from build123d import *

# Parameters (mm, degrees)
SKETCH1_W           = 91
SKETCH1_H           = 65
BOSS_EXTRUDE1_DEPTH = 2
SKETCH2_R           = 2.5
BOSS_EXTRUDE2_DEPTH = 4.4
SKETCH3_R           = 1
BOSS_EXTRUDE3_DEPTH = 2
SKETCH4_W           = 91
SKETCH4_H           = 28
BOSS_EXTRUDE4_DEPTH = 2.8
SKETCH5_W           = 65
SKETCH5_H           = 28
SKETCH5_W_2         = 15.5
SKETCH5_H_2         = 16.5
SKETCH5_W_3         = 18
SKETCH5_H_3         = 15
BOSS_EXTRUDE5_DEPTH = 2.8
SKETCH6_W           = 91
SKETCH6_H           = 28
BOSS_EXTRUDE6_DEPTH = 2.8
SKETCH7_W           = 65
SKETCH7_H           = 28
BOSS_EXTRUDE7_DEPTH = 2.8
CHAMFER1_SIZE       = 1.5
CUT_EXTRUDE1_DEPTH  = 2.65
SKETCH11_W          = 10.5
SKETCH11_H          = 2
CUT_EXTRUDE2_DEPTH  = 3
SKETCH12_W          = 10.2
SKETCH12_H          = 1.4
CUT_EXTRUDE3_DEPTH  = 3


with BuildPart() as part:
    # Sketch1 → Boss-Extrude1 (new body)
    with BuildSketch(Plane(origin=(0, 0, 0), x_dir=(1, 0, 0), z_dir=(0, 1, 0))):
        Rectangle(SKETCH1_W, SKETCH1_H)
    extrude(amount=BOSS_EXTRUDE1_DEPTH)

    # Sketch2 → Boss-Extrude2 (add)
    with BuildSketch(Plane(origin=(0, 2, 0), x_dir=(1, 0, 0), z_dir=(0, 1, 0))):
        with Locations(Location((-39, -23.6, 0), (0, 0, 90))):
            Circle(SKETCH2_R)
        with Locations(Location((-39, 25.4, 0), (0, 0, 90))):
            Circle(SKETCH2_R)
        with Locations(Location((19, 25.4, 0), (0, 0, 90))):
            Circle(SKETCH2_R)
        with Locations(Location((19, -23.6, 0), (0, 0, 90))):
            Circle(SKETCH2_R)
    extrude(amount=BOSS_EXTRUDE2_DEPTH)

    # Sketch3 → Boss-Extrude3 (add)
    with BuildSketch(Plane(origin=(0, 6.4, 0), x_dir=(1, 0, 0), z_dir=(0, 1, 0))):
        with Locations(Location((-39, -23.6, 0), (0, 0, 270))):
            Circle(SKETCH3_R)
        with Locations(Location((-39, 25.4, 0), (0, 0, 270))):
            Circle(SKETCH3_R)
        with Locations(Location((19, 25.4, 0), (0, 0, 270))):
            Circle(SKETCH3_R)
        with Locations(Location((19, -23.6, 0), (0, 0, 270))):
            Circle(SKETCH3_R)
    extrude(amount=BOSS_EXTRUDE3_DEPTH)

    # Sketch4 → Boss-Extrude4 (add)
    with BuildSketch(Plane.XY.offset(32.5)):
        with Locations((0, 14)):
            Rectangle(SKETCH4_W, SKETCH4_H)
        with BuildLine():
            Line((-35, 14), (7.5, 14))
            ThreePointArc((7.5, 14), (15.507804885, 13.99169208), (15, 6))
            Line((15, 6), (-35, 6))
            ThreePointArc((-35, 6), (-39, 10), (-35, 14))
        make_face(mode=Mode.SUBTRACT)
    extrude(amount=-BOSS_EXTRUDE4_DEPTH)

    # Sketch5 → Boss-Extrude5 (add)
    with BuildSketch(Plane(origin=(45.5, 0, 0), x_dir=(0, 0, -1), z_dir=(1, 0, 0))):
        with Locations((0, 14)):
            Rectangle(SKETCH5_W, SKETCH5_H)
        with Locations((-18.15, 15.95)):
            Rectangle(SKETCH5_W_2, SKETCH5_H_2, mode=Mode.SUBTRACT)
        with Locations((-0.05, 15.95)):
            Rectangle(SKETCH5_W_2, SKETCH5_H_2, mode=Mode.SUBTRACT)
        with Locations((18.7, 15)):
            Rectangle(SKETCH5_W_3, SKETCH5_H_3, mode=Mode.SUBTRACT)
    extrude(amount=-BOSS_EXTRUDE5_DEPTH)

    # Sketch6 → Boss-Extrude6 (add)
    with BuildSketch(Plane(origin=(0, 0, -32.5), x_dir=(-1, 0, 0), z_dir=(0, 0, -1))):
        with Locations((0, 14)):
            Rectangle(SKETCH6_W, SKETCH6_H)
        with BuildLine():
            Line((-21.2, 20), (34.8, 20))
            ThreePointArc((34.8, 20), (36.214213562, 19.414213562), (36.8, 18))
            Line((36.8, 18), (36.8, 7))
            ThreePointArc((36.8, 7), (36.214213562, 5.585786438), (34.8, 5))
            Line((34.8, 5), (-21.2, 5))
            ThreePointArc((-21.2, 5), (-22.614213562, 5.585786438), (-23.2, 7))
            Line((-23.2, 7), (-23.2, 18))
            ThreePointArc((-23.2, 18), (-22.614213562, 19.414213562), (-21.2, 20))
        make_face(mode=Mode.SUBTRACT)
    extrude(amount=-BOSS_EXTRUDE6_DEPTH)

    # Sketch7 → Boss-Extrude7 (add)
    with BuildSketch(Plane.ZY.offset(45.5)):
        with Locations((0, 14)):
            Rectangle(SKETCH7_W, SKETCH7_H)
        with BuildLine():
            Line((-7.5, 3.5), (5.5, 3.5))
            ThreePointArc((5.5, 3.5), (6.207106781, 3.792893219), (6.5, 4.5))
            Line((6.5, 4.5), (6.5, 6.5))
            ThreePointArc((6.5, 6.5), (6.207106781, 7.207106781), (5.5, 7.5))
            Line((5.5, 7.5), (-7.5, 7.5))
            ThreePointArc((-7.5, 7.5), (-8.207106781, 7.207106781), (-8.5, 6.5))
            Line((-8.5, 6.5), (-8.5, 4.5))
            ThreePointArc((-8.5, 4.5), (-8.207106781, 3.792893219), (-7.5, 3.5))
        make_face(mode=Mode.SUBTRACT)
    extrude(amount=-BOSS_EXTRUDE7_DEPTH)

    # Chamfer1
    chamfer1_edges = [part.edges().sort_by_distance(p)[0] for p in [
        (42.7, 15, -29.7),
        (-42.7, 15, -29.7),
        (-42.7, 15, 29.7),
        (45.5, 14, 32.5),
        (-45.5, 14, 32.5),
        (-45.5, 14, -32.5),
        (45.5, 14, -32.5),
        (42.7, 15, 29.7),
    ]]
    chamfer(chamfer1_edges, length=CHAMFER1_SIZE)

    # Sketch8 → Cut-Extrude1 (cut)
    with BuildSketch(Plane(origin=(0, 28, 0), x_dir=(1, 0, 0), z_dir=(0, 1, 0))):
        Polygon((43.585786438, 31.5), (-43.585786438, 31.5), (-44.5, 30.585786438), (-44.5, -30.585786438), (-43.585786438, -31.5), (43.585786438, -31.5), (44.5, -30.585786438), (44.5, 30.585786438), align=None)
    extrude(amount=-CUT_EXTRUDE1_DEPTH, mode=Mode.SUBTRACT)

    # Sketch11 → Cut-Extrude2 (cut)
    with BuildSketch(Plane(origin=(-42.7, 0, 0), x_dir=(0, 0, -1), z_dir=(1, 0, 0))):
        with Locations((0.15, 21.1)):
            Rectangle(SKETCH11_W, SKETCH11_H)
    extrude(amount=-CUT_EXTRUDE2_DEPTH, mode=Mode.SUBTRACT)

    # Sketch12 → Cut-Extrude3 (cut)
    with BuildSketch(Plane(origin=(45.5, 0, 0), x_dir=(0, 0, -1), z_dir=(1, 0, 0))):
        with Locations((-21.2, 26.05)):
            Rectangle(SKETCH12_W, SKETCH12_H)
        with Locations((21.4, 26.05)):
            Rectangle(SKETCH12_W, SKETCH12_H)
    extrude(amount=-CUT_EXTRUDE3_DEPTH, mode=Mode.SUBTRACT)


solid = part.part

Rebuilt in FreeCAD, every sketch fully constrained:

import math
import FreeCAD as App
import Part
import Sketcher

V = App.Vector


def edges_at(feature, points):
    """Names of the edges that pass closest to the given points."""
    edges = feature.Shape.Edges
    near = lambda p: min(range(len(edges)), key=lambda i: edges[i].distToShape(Part.Vertex(*p))[0])
    return sorted({f"Edge{near(p) + 1}" for p in points})


def add_polygon(sketch, points):
    """Adds a closed chain of lines whose ends are joined by coincident constraints."""
    first, n = sketch.GeometryCount, len(points)
    for a, b in zip(points, points[1:] + points[:1]):
        sketch.addGeometry(Part.LineSegment(App.Vector(*a, 0), App.Vector(*b, 0)), False)
    for i in range(n):
        sketch.addConstraint(Sketcher.Constraint("Coincident", first + i, 2, first + (i + 1) % n, 1))

doc = App.newDocument("Part")
params = doc.addObject("Spreadsheet::Sheet", "Params")
for row, (alias, value) in enumerate([
    ("sketch1_width", "91 mm"),
    ("sketch1_height", "65 mm"),
    ("pad1_length", "2 mm"),
    ("sketch2_diameter", "5 mm"),
    ("pad2_length", "4.4 mm"),
    ("sketch3_diameter", "2 mm"),
    ("pad3_length", "2 mm"),
    ("sketch4_radius", "4 mm"),
    ("sketch4_width", "91 mm"),
    ("sketch4_width2", "50 mm"),
    ("sketch4_height", "28 mm"),
    ("sketch4_width3", "42.5 mm"),
    ("pad4_length", "2.8 mm"),
    ("sketch5_width", "28 mm"),
    ("sketch5_width2", "15 mm"),
    ("sketch5_height", "65 mm"),
    ("sketch5_height2", "18 mm"),
    ("sketch5_width3", "16.5 mm"),
    ("pad5_length", "2.8 mm"),
    ("sketch6_radius", "2 mm"),
    ("sketch6_width", "91 mm"),
    ("sketch6_width2", "56 mm"),
    ("sketch6_height", "28 mm"),
    ("sketch6_height2", "11 mm"),
    ("pad6_length", "2.8 mm"),
    ("sketch7_radius", "1 mm"),
    ("sketch7_width", "28 mm"),
    ("sketch7_width2", "2 mm"),
    ("sketch7_height", "65 mm"),
    ("sketch7_height2", "13 mm"),
    ("pad7_length", "2.8 mm"),
    ("chamfer_size", "1.5 mm"),
    ("pocket1_length", "2.65 mm"),
    ("sketch9_width", "2 mm"),
    ("sketch9_height", "10.5 mm"),
    ("pocket2_length", "3 mm"),
    ("sketch10_width", "1.4 mm"),
    ("sketch10_height", "10.2 mm"),
    ("pocket3_length", "3 mm"),
], start=1):
    params.set(f"A{row}", alias)
    params.set(f"B{row}", "=" + value)
    params.setAlias(f"B{row}", alias)

body = doc.addObject("PartDesign::Body", "Body")

sketch1 = body.newObject("Sketcher::SketchObject", "Sketch")
sketch1.AttachmentSupport = (doc.getObject("XZ_Plane"), [""])
sketch1.MapMode = "FlatFace"
add_polygon(sketch1, [(-46, -32), (-46, 32), (46, 32), (46, -32)])
sketch1.addConstraint([
    Sketcher.Constraint("Vertical", 0),
    Sketcher.Constraint("Horizontal", 1),
    Sketcher.Constraint("Vertical", 2),
    Sketcher.Constraint("Horizontal", 3),
    Sketcher.Constraint("Symmetric", 0, 2, 2, 2, -1, 1),
    Sketcher.Constraint("DistanceX", 1, 1, 1, 2, 91.0),
    Sketcher.Constraint("DistanceY", 0, 1, 0, 2, 65.0),
])
sketch1.setExpression("Constraints[9]", "Params.sketch1_width")
sketch1.setExpression("Constraints[10]", "Params.sketch1_height")
pad1 = body.newObject("PartDesign::Pad", "Pad")
pad1.Profile = sketch1
pad1.setExpression("Length", "Params.pad1_length")
pad1.Reversed = True

sketch2 = body.newObject("Sketcher::SketchObject", "Sketch001")
sketch2.AttachmentSupport = (doc.getObject("XZ_Plane"), [""])
sketch2.MapMode = "FlatFace"
sketch2.AttachmentOffset = App.Placement(V(0, 0, -2), App.Rotation())
sketch2.addGeometry([
    Part.Circle(V(-39, 23.6, 0), V(0, 0, 1), 2.5),
    Part.Circle(V(-39, -25.4, 0), V(0, 0, 1), 2.5),
    Part.Circle(V(19, -25.4, 0), V(0, 0, 1), 2.5),
    Part.Circle(V(19, 23.6, 0), V(0, 0, 1), 2.5),
], False)
sketch2.addConstraint([
    Sketcher.Constraint("Equal", 0, 1),
    Sketcher.Constraint("Equal", 1, 2),
    Sketcher.Constraint("Equal", 2, 3),
    Sketcher.Constraint("Horizontal", 1, 3, 2, 3),
    Sketcher.Constraint("Horizontal", 0, 3, 3, 3),
    Sketcher.Constraint("Vertical", 0, 3, 1, 3),
    Sketcher.Constraint("Vertical", 2, 3, 3, 3),
    Sketcher.Constraint("Diameter", 0, 5.0),
    Sketcher.Constraint("DistanceX", 0, 3, -1, 1, 39.0),
    Sketcher.Constraint("DistanceX", -1, 1, 2, 3, 19.0),
    Sketcher.Constraint("DistanceY", 1, 3, 0, 3, 49.0),
    Sketcher.Constraint("DistanceY", -1, 1, 0, 3, 23.6),
])
sketch2.setExpression("Constraints[7]", "Params.sketch2_diameter")
pad2 = body.newObject("PartDesign::Pad", "Pad001")
pad2.Profile = sketch2
pad2.setExpression("Length", "Params.pad2_length")
pad2.Reversed = True

sketch3 = body.newObject("Sketcher::SketchObject", "Sketch002")
sketch3.AttachmentSupport = (doc.getObject("XZ_Plane"), [""])
sketch3.MapMode = "FlatFace"
sketch3.AttachmentOffset = App.Placement(V(0, 0, -6.4), App.Rotation())
sketch3.addGeometry([
    Part.Circle(V(-39, 23.6, 0), V(0, 0, 1), 1),
    Part.Circle(V(-39, -25.4, 0), V(0, 0, 1), 1),
    Part.Circle(V(19, -25.4, 0), V(0, 0, 1), 1),
    Part.Circle(V(19, 23.6, 0), V(0, 0, 1), 1),
], False)
sketch3.addConstraint([
    Sketcher.Constraint("Equal", 0, 1),
    Sketcher.Constraint("Equal", 1, 2),
    Sketcher.Constraint("Equal", 2, 3),
    Sketcher.Constraint("Horizontal", 1, 3, 2, 3),
    Sketcher.Constraint("Horizontal", 0, 3, 3, 3),
    Sketcher.Constraint("Vertical", 0, 3, 1, 3),
    Sketcher.Constraint("Vertical", 2, 3, 3, 3),
    Sketcher.Constraint("Diameter", 0, 2.0),
    Sketcher.Constraint("DistanceX", 0, 3, -1, 1, 39.0),
    Sketcher.Constraint("DistanceX", -1, 1, 2, 3, 19.0),
    Sketcher.Constraint("DistanceY", 1, 3, 0, 3, 49.0),
    Sketcher.Constraint("DistanceY", -1, 1, 0, 3, 23.6),
])
sketch3.setExpression("Constraints[7]", "Params.sketch3_diameter")
pad3 = body.newObject("PartDesign::Pad", "Pad002")
pad3.Profile = sketch3
pad3.setExpression("Length", "Params.pad3_length")
pad3.Reversed = True

sketch4 = body.newObject("Sketcher::SketchObject", "Sketch003")
sketch4.AttachmentSupport = (doc.getObject("XY_Plane"), [""])
sketch4.MapMode = "FlatFace"
sketch4.AttachmentOffset = App.Placement(V(0, 0, 32.5), App.Rotation())
add_polygon(sketch4, [(-45.5, 28), (-45.5, 0), (45.5, 0), (45.5, 28)])
sketch4.addGeometry(Part.ArcOfCircle(Part.Circle(V(-35, 10, 0), V(0, 0, 1), 4), math.radians(90), math.radians(270)), False)
sketch4.addGeometry(Part.LineSegment(V(-35, 14, 0), V(7.5, 14, 0)), False)
sketch4.addGeometry(Part.ArcOfCircle(Part.Circle(V(11.5, 10.2, 0), V(0, 0, 1), 5.5), math.radians(-50), math.radians(137)), False)
sketch4.addGeometry(Part.LineSegment(V(15, 6, 0), V(-35, 6, 0)), False)
sketch4.addConstraint([
    Sketcher.Constraint("Tangent", 4, 1, 5, 1),
    Sketcher.Constraint("Coincident", 5, 2, 6, 2),
    Sketcher.Constraint("Coincident", 6, 1, 7, 1),
    Sketcher.Constraint("Tangent", 7, 2, 4, 2),
    Sketcher.Constraint("Vertical", 0),
    Sketcher.Constraint("Horizontal", 1),
    Sketcher.Constraint("Vertical", 2),
    Sketcher.Constraint("Horizontal", 3),
    Sketcher.Constraint("Horizontal", 5),
    Sketcher.Constraint("Horizontal", 7),
    Sketcher.Constraint("Symmetric", 0, 2, 1, 2, -1, 1),
    Sketcher.Constraint("Radius", 4, 4.0),
    Sketcher.Constraint("DistanceX", 1, 1, 1, 2, 91.0),
    Sketcher.Constraint("DistanceX", 7, 2, 7, 1, 50.0),
    Sketcher.Constraint("DistanceY", 0, 2, 0, 1, 28.0),
    Sketcher.Constraint("DistanceX", 5, 1, 5, 2, 42.5),
    Sketcher.Constraint("DistanceX", 4, 3, -1, 1, 35.0),
    Sketcher.Constraint("DistanceY", -1, 1, 4, 3, 10.0),
    Sketcher.Constraint("DistanceX", 0, 2, 6, 3, 57.0),
])
sketch4.setExpression("Constraints[15]", "Params.sketch4_radius")
sketch4.setExpression("Constraints[16]", "Params.sketch4_width")
sketch4.setExpression("Constraints[17]", "Params.sketch4_width2")
sketch4.setExpression("Constraints[18]", "Params.sketch4_height")
sketch4.setExpression("Constraints[19]", "Params.sketch4_width3")
pad4 = body.newObject("PartDesign::Pad", "Pad003")
pad4.Profile = sketch4
pad4.setExpression("Length", "Params.pad4_length")
pad4.Reversed = True

sketch5 = body.newObject("Sketcher::SketchObject", "Sketch004")
sketch5.AttachmentSupport = (doc.getObject("YZ_Plane"), [""])
sketch5.MapMode = "FlatFace"
sketch5.AttachmentOffset = App.Placement(V(0, 0, 45.5), App.Rotation())
add_polygon(sketch5, [(28, 32), (0, 32), (0, -32), (28, -32)])
add_polygon(sketch5, [(8, -28), (8, -10), (22, -10), (22, -28)])
add_polygon(sketch5, [(8, 10), (8, 26), (24, 26), (24, 10)])
add_polygon(sketch5, [(8, -8), (8, 8), (24, 8), (24, -8)])
sketch5.addConstraint([
    Sketcher.Constraint("Horizontal", 0),
    Sketcher.Constraint("Vertical", 1),
    Sketcher.Constraint("Horizontal", 2),
    Sketcher.Constraint("Vertical", 3),
    Sketcher.Constraint("Vertical", 4),
    Sketcher.Constraint("Horizontal", 5),
    Sketcher.Constraint("Vertical", 6),
    Sketcher.Constraint("Horizontal", 7),
    Sketcher.Constraint("Vertical", 8),
    Sketcher.Constraint("Horizontal", 9),
    Sketcher.Constraint("Vertical", 10),
    Sketcher.Constraint("Horizontal", 11),
    Sketcher.Constraint("Vertical", 12),
    Sketcher.Constraint("Horizontal", 13),
    Sketcher.Constraint("Vertical", 14),
    Sketcher.Constraint("Horizontal", 15),
    Sketcher.Constraint("Symmetric", 0, 2, 1, 2, -1, 1),
    Sketcher.Constraint("Vertical", 11, 2, 12, 2),
    Sketcher.Constraint("Vertical", 10, 2, 13, 2),
    Sketcher.Constraint("Equal", 10, 12),
    Sketcher.Constraint("DistanceX", 0, 2, 0, 1, 28.0),
    Sketcher.Constraint("DistanceX", 5, 1, 5, 2, 15.0),
    Sketcher.Constraint("DistanceY", 1, 2, 1, 1, 65.0),
    Sketcher.Constraint("DistanceY", 4, 1, 4, 2, 18.0),
    Sketcher.Constraint("DistanceX", 9, 1, 9, 2, 16.5),
    Sketcher.Constraint("DistanceY", 8, 1, 8, 2, 15.5),
    Sketcher.Constraint("DistanceY", 5, 2, 14, 2, 2.0),
    Sketcher.Constraint("DistanceX", -1, 1, 4, 2, 7.5),
    Sketcher.Constraint("DistanceY", 4, 2, -1, 1, 9.7),
    Sketcher.Constraint("DistanceX", -1, 1, 8, 2, 7.7),
    Sketcher.Constraint("DistanceY", -1, 1, 8, 2, 25.9),
])
sketch5.setExpression("Constraints[36]", "Params.sketch5_width")
sketch5.setExpression("Constraints[37]", "Params.sketch5_width2")
sketch5.setExpression("Constraints[38]", "Params.sketch5_height")
sketch5.setExpression("Constraints[39]", "Params.sketch5_height2")
sketch5.setExpression("Constraints[40]", "Params.sketch5_width3")
pad5 = body.newObject("PartDesign::Pad", "Pad004")
pad5.Profile = sketch5
pad5.setExpression("Length", "Params.pad5_length")
pad5.Reversed = True

sketch6 = body.newObject("Sketcher::SketchObject", "Sketch005")
sketch6.AttachmentSupport = (doc.getObject("XY_Plane"), [""])
sketch6.MapMode = "FlatFace"
sketch6.AttachmentOffset = App.Placement(V(0, 0, -32.5), App.Rotation())
add_polygon(sketch6, [(45.5, 28), (45.5, 0), (-45.5, 0), (-45.5, 28)])
sketch6.addGeometry(Part.ArcOfCircle(Part.Circle(V(21.2, 18, 0), V(0, 0, 1), 2), math.radians(0), math.radians(90)), False)
sketch6.addGeometry(Part.LineSegment(V(21.2, 20, 0), V(-34.8, 20, 0)), False)
sketch6.addGeometry(Part.ArcOfCircle(Part.Circle(V(-34.8, 18, 0), V(0, 0, 1), 2), math.radians(90), math.radians(180)), False)
sketch6.addGeometry(Part.LineSegment(V(-36.8, 18, 0), V(-36.8, 7, 0)), False)
sketch6.addGeometry(Part.ArcOfCircle(Part.Circle(V(-34.8, 7, 0), V(0, 0, 1), 2), math.radians(-180), math.radians(-90)), False)
sketch6.addGeometry(Part.LineSegment(V(-34.8, 5, 0), V(21.2, 5, 0)), False)
sketch6.addGeometry(Part.ArcOfCircle(Part.Circle(V(21.2, 7, 0), V(0, 0, 1), 2), math.radians(-90), math.radians(0)), False)
sketch6.addGeometry(Part.LineSegment(V(23.2, 7, 0), V(23.2, 18, 0)), False)
sketch6.addConstraint([
    Sketcher.Constraint("Tangent", 4, 2, 5, 1),
    Sketcher.Constraint("Tangent", 5, 2, 6, 1),
    Sketcher.Constraint("Tangent", 6, 2, 7, 1),
    Sketcher.Constraint("Tangent", 7, 2, 8, 1),
    Sketcher.Constraint("Tangent", 8, 2, 9, 1),
    Sketcher.Constraint("Tangent", 9, 2, 10, 1),
    Sketcher.Constraint("Tangent", 10, 2, 11, 1),
    Sketcher.Constraint("Tangent", 11, 2, 4, 1),
    Sketcher.Constraint("Vertical", 0),
    Sketcher.Constraint("Horizontal", 1),
    Sketcher.Constraint("Vertical", 2),
    Sketcher.Constraint("Horizontal", 3),
    Sketcher.Constraint("Horizontal", 5),
    Sketcher.Constraint("Vertical", 7),
    Sketcher.Constraint("Horizontal", 9),
    Sketcher.Constraint("Vertical", 11),
    Sketcher.Constraint("Equal", 4, 6),
    Sketcher.Constraint("Equal", 6, 8),
    Sketcher.Constraint("Equal", 8, 10),
    Sketcher.Constraint("Symmetric", 0, 2, 1, 2, -1, 1),
    Sketcher.Constraint("Radius", 4, 2.0),
    Sketcher.Constraint("DistanceX", 1, 2, 1, 1, 91.0),
    Sketcher.Constraint("DistanceX", 5, 2, 5, 1, 56.0),
    Sketcher.Constraint("DistanceY", 0, 2, 0, 1, 28.0),
    Sketcher.Constraint("DistanceY", 7, 2, 7, 1, 11.0),
    Sketcher.Constraint("DistanceY", -1, 1, 4, 3, 18.0),
    Sketcher.Constraint("DistanceX", -1, 1, 4, 3, 21.2),
])
sketch6.setExpression("Constraints[24]", "Params.sketch6_radius")
sketch6.setExpression("Constraints[25]", "Params.sketch6_width")
sketch6.setExpression("Constraints[26]", "Params.sketch6_width2")
sketch6.setExpression("Constraints[27]", "Params.sketch6_height")
sketch6.setExpression("Constraints[28]", "Params.sketch6_height2")
pad6 = body.newObject("PartDesign::Pad", "Pad005")
pad6.Profile = sketch6
pad6.setExpression("Length", "Params.pad6_length")

sketch7 = body.newObject("Sketcher::SketchObject", "Sketch006")
sketch7.AttachmentSupport = (doc.getObject("YZ_Plane"), [""])
sketch7.MapMode = "FlatFace"
sketch7.AttachmentOffset = App.Placement(V(0, 0, -45.5), App.Rotation())
add_polygon(sketch7, [(28, -32.5), (0, -32.5), (0, 32.5), (28, 32.5)])
sketch7.addGeometry(Part.LineSegment(V(3.5, 5.5, 0), V(3.5, -7.5, 0)), False)
sketch7.addGeometry(Part.ArcOfCircle(Part.Circle(V(4.5, -7.5, 0), V(0, 0, 1), 1), math.radians(-180), math.radians(-90)), False)
sketch7.addGeometry(Part.LineSegment(V(4.5, -8.5, 0), V(6.5, -8.5, 0)), False)
sketch7.addGeometry(Part.ArcOfCircle(Part.Circle(V(6.5, -7.5, 0), V(0, 0, 1), 1), math.radians(-90), math.radians(0)), False)
sketch7.addGeometry(Part.LineSegment(V(7.5, -7.5, 0), V(7.5, 5.5, 0)), False)
sketch7.addGeometry(Part.ArcOfCircle(Part.Circle(V(6.5, 5.5, 0), V(0, 0, 1), 1), math.radians(0), math.radians(90)), False)
sketch7.addGeometry(Part.LineSegment(V(6.5, 6.5, 0), V(4.5, 6.5, 0)), False)
sketch7.addGeometry(Part.ArcOfCircle(Part.Circle(V(4.5, 5.5, 0), V(0, 0, 1), 1), math.radians(90), math.radians(180)), False)
sketch7.addConstraint([
    Sketcher.Constraint("Tangent", 4, 2, 5, 1),
    Sketcher.Constraint("Tangent", 5, 2, 6, 1),
    Sketcher.Constraint("Tangent", 6, 2, 7, 1),
    Sketcher.Constraint("Tangent", 7, 2, 8, 1),
    Sketcher.Constraint("Tangent", 8, 2, 9, 1),
    Sketcher.Constraint("Tangent", 9, 2, 10, 1),
    Sketcher.Constraint("Tangent", 10, 2, 11, 1),
    Sketcher.Constraint("Tangent", 11, 2, 4, 1),
    Sketcher.Constraint("Horizontal", 0),
    Sketcher.Constraint("Vertical", 1),
    Sketcher.Constraint("Horizontal", 2),
    Sketcher.Constraint("Vertical", 3),
    Sketcher.Constraint("Vertical", 4),
    Sketcher.Constraint("Horizontal", 6),
    Sketcher.Constraint("Vertical", 8),
    Sketcher.Constraint("Horizontal", 10),
    Sketcher.Constraint("Equal", 5, 7),
    Sketcher.Constraint("Equal", 7, 9),
    Sketcher.Constraint("Equal", 9, 11),
    Sketcher.Constraint("Symmetric", 0, 2, 1, 2, -1, 1),
    Sketcher.Constraint("Radius", 5, 1.0),
    Sketcher.Constraint("DistanceX", 0, 2, 0, 1, 28.0),
    Sketcher.Constraint("DistanceX", 6, 1, 6, 2, 2.0),
    Sketcher.Constraint("DistanceY", 1, 1, 1, 2, 65.0),
    Sketcher.Constraint("DistanceY", 4, 2, 4, 1, 13.0),
    Sketcher.Constraint("DistanceY", 0, 2, 5, 3, 25.0),
    Sketcher.Constraint("DistanceX", -1, 1, 5, 3, 4.5),
])
sketch7.setExpression("Constraints[24]", "Params.sketch7_radius")
sketch7.setExpression("Constraints[25]", "Params.sketch7_width")
sketch7.setExpression("Constraints[26]", "Params.sketch7_width2")
sketch7.setExpression("Constraints[27]", "Params.sketch7_height")
sketch7.setExpression("Constraints[28]", "Params.sketch7_height2")
pad7 = body.newObject("PartDesign::Pad", "Pad006")
pad7.Profile = sketch7
pad7.setExpression("Length", "Params.pad7_length")
doc.recompute()

chamfer = body.newObject("PartDesign::Chamfer", "Chamfer")
chamfer.Base = (pad7, edges_at(pad7, [
    (42.7, 15, -29.7),
    (-42.7, 15, -29.7),
    (-42.7, 15, 29.7),
    (45.5, 14, 32.5),
    (-45.5, 14, 32.5),
    (-45.5, 14, -32.5),
    (45.5, 14, -32.5),
    (42.7, 15, 29.7),
]))
chamfer.setExpression("Size", "Params.chamfer_size")

sketch8 = body.newObject("Sketcher::SketchObject", "Sketch007")
sketch8.AttachmentSupport = (doc.getObject("XZ_Plane"), [""])
sketch8.MapMode = "FlatFace"
sketch8.AttachmentOffset = App.Placement(V(0, 0, -28), App.Rotation())
add_polygon(sketch8, [(43.6, -31.5), (-43.6, -31.5), (-44.5, -30.6), (-44.5, 30.6), (-43.6, 31.5), (43.6, 31.5), (44.5, 30.6), (44.5, -30.6)])
sketch8.addConstraint([
    Sketcher.Constraint("Horizontal", 0),
    Sketcher.Constraint("Vertical", 2),
    Sketcher.Constraint("Horizontal", 4),
    Sketcher.Constraint("Vertical", 6),
    Sketcher.Constraint("Symmetric", 0, 2, 4, 2, -1, 1),
    Sketcher.Constraint("Symmetric", 1, 2, 5, 2, -1, 1),
    Sketcher.Constraint("Perpendicular", 1, 3),
    Sketcher.Constraint("Perpendicular", 5, 7),
    Sketcher.Constraint("Horizontal", 2, 2, 5, 2),
    Sketcher.Constraint("Horizontal", 1, 2, 6, 2),
    Sketcher.Constraint("Vertical", 0, 2, 3, 2),
    Sketcher.Constraint("DistanceY", 0, 2, 3, 2, 63.0),
    Sketcher.Constraint("DistanceX", 2, 2, 5, 2, 89.0),
    Sketcher.Constraint("DistanceX", 0, 2, 0, 1, 87.171573),
])
pocket1 = body.newObject("PartDesign::Pocket", "Pocket")
pocket1.Profile = sketch8
pocket1.setExpression("Length", "Params.pocket1_length")
pocket1.Reversed = True

sketch9 = body.newObject("Sketcher::SketchObject", "Sketch008")
sketch9.AttachmentSupport = (doc.getObject("YZ_Plane"), [""])
sketch9.MapMode = "FlatFace"
sketch9.AttachmentOffset = App.Placement(V(0, 0, -42.7), App.Rotation())
add_polygon(sketch9, [(22.1, 5.1), (20.1, 5.1), (20.1, -5.4), (22.1, -5.4)])
sketch9.addConstraint([
    Sketcher.Constraint("Horizontal", 0),
    Sketcher.Constraint("Vertical", 1),
    Sketcher.Constraint("Horizontal", 2),
    Sketcher.Constraint("Vertical", 3),
    Sketcher.Constraint("DistanceX", 0, 2, 0, 1, 2.0),
    Sketcher.Constraint("DistanceY", 1, 2, 1, 1, 10.5),
    Sketcher.Constraint("DistanceX", -1, 1, 0, 2, 20.1),
    Sketcher.Constraint("DistanceY", -1, 1, 0, 2, 5.1),
])
sketch9.setExpression("Constraints[8]", "Params.sketch9_width")
sketch9.setExpression("Constraints[9]", "Params.sketch9_height")
pocket2 = body.newObject("PartDesign::Pocket", "Pocket001")
pocket2.Profile = sketch9
pocket2.setExpression("Length", "Params.pocket2_length")

sketch10 = body.newObject("Sketcher::SketchObject", "Sketch009")
sketch10.AttachmentSupport = (doc.getObject("YZ_Plane"), [""])
sketch10.MapMode = "FlatFace"
sketch10.AttachmentOffset = App.Placement(V(0, 0, 45.5), App.Rotation())
add_polygon(sketch10, [(26.8, 26.3), (25.4, 26.3), (25.4, 16.1), (26.8, 16.1)])
add_polygon(sketch10, [(26.8, -16.3), (25.4, -16.3), (25.4, -26.5), (26.8, -26.5)])
sketch10.addConstraint([
    Sketcher.Constraint("Horizontal", 0),
    Sketcher.Constraint("Vertical", 1),
    Sketcher.Constraint("Horizontal", 2),
    Sketcher.Constraint("Vertical", 3),
    Sketcher.Constraint("Horizontal", 4),
    Sketcher.Constraint("Vertical", 5),
    Sketcher.Constraint("Horizontal", 6),
    Sketcher.Constraint("Vertical", 7),
    Sketcher.Constraint("Vertical", 1, 2, 4, 2),
    Sketcher.Constraint("Vertical", 3, 2, 6, 2),
    Sketcher.Constraint("Equal", 3, 5),
    Sketcher.Constraint("DistanceX", 0, 2, 0, 1, 1.4),
    Sketcher.Constraint("DistanceY", 1, 2, 1, 1, 10.2),
    Sketcher.Constraint("DistanceY", -1, 1, 0, 2, 26.3),
    Sketcher.Constraint("DistanceY", 4, 2, -1, 1, 16.3),
    Sketcher.Constraint("DistanceX", -1, 1, 0, 2, 25.35),
])
sketch10.setExpression("Constraints[19]", "Params.sketch10_width")
sketch10.setExpression("Constraints[20]", "Params.sketch10_height")
pocket3 = body.newObject("PartDesign::Pocket", "Pocket002")
pocket3.Profile = sketch10
pocket3.setExpression("Length", "Params.pocket3_length")

doc.recompute()
